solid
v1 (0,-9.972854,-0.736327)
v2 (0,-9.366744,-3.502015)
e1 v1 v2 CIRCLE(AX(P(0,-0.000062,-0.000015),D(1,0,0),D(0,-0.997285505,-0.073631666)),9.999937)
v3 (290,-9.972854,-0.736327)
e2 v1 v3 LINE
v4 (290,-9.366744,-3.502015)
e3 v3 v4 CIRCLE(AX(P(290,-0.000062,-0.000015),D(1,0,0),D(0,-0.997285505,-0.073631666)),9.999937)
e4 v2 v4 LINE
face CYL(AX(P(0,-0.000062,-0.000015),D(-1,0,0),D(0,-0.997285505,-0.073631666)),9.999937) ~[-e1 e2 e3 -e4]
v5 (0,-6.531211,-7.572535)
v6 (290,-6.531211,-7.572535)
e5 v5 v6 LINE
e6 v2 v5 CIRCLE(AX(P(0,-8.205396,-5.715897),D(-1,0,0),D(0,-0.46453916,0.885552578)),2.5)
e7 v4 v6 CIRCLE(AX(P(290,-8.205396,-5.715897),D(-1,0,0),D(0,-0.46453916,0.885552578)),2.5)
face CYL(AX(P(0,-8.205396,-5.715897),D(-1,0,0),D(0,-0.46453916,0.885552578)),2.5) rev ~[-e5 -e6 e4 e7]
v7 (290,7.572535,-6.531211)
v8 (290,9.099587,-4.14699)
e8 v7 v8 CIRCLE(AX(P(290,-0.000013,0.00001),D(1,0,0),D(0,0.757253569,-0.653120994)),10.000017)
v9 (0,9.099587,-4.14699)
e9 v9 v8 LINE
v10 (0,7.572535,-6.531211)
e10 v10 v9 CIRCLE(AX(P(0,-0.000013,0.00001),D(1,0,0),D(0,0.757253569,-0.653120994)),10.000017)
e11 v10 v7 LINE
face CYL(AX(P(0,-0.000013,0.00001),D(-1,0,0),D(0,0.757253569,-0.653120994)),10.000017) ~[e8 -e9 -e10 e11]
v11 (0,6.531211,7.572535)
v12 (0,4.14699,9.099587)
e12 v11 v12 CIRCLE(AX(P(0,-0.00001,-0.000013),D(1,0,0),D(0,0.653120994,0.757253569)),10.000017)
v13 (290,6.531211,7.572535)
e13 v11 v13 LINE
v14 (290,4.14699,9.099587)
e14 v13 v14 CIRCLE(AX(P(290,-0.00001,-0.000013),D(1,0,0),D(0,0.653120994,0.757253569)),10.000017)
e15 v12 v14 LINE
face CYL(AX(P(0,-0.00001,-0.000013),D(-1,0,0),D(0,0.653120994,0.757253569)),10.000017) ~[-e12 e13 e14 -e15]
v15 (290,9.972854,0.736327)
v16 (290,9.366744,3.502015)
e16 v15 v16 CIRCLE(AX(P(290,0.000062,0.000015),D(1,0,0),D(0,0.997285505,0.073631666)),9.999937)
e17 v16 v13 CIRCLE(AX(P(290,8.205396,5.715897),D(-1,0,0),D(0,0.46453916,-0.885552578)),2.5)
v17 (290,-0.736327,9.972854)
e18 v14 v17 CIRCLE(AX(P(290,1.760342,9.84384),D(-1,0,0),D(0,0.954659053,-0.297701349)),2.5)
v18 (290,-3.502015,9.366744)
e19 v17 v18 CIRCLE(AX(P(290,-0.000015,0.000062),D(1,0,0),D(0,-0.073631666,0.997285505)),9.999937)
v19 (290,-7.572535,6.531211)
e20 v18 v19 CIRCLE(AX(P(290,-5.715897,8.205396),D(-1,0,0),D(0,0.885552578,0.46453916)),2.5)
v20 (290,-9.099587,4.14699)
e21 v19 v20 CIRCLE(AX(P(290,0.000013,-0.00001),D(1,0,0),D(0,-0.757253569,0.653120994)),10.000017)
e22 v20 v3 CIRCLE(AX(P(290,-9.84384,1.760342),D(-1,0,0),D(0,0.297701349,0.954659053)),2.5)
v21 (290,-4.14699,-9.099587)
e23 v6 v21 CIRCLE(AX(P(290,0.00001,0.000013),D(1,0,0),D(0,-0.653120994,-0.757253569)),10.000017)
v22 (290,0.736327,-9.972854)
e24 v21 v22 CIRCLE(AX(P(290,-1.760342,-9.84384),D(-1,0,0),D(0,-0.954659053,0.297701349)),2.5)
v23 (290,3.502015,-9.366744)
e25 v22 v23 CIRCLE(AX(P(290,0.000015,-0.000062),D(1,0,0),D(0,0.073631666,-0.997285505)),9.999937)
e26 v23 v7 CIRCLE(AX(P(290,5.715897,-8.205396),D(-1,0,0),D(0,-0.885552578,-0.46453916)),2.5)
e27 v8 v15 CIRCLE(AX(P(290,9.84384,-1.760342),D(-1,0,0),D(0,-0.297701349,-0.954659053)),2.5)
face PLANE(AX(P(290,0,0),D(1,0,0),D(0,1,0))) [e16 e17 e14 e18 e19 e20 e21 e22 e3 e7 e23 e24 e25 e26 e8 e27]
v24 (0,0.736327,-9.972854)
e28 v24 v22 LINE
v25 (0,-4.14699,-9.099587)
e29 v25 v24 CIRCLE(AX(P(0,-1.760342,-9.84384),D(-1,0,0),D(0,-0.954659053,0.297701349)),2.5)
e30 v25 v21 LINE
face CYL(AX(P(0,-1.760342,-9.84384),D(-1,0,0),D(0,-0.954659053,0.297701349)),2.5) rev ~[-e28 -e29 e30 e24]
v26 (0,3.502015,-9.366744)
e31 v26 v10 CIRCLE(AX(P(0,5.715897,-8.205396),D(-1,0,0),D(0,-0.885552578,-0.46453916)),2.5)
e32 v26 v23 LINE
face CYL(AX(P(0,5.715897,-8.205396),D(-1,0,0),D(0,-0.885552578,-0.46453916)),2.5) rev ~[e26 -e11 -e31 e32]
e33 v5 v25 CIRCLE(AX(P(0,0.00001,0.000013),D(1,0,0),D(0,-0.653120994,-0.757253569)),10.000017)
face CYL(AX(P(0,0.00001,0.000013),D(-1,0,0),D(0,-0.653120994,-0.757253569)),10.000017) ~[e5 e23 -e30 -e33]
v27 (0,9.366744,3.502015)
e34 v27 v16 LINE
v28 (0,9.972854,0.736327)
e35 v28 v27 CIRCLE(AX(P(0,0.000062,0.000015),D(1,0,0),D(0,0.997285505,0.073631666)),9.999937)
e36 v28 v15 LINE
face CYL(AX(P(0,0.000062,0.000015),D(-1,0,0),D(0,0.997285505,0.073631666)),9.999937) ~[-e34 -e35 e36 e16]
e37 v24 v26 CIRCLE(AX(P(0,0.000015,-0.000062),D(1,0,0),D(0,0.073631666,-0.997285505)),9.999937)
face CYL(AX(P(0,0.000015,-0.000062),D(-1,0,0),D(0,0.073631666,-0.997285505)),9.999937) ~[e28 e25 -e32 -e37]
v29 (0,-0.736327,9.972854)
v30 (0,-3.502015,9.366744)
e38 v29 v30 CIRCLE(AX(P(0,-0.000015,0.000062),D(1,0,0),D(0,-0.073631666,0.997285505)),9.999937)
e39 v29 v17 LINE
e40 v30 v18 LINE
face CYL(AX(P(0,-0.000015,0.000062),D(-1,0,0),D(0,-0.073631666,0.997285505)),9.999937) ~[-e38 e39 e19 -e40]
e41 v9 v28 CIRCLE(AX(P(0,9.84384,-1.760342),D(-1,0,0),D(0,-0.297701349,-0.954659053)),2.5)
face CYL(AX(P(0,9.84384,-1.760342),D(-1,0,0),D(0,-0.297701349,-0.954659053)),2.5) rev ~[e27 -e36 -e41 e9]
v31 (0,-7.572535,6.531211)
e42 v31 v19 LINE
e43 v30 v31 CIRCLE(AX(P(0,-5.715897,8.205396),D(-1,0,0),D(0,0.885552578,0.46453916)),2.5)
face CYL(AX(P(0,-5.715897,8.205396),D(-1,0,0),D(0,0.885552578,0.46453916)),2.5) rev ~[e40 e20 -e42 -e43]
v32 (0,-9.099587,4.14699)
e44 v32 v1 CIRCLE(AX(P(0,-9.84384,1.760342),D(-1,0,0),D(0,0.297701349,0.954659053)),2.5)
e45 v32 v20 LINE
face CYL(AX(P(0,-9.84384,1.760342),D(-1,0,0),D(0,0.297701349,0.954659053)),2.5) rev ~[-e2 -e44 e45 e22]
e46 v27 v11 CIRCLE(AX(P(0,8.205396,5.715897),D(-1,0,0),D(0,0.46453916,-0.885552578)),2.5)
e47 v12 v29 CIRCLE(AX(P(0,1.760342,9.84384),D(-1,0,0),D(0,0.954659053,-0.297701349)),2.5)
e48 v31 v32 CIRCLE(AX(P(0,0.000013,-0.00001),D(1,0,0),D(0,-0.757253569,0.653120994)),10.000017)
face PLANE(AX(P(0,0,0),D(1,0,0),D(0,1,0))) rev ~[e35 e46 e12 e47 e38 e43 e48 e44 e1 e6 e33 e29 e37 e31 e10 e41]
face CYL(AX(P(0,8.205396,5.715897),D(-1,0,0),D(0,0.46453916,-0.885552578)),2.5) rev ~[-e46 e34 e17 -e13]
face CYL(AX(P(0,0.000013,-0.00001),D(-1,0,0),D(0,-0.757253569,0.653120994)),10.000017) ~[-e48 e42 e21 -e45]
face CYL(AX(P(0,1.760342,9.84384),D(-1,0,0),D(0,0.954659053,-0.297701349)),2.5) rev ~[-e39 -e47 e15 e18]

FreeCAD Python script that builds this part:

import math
import FreeCAD as App
import Part
import Sketcher
Q = App.Units.Quantity

doc = App.newDocument("Part")
body = doc.addObject("PartDesign::Body", "Body")

sketch1 = doc.addObject("Sketcher::SketchObject", "Sketch")
body.addObject(sketch1)
sketch1.AttachmentSupport = (doc.YZ_Plane, [""])
sketch1.MapMode = "FlatFace"
sketch1.addGeometry(Part.ArcOfCircle(Part.Circle(App.Vector(5.715897, -8.205396, 0), App.Vector(0, 0, 1), 2.5), math.radians(42.041903), math.radians(207.680401)), False)
sketch1.addGeometry(Part.ArcOfCircle(Part.Circle(App.Vector(-0.000013, 0.00001, 0), App.Vector(0, 0, 1), 10.000017), math.radians(-40.777327), math.radians(-24.500381)), False)
sketch1.addGeometry(Part.ArcOfCircle(Part.Circle(App.Vector(9.84384, -1.760342, 0), App.Vector(0, 0, 1), 2.5), math.radians(87.041914), math.radians(252.680407)), False)
sketch1.addGeometry(Part.ArcOfCircle(Part.Circle(App.Vector(0.000062, 0.000015, 0), App.Vector(0, 0, 1), 9.999937), math.radians(4.222605), math.radians(20.499684)), False)
sketch1.addGeometry(Part.ArcOfCircle(Part.Circle(App.Vector(8.205396, 5.715897, 0), App.Vector(0, 0, 1), 2.5), math.radians(132.041903), math.radians(297.680401)), False)
sketch1.addGeometry(Part.ArcOfCircle(Part.Circle(App.Vector(-0.00001, -0.000013, 0), App.Vector(0, 0, 1), 10.000017), math.radians(49.222673), math.radians(65.499619)), False)
sketch1.addGeometry(Part.ArcOfCircle(Part.Circle(App.Vector(1.760342, 9.84384, 0), App.Vector(0, 0, 1), 2.5), math.radians(177.041914), math.radians(342.680407)), False)
sketch1.addGeometry(Part.ArcOfCircle(Part.Circle(App.Vector(-0.000015, 0.000062, 0), App.Vector(0, 0, 1), 9.999937), math.radians(94.222605), math.radians(110.499684)), False)
sketch1.addGeometry(Part.ArcOfCircle(Part.Circle(App.Vector(-5.715897, 8.205396, 0), App.Vector(0, 0, 1), 2.5), math.radians(-137.958097), math.radians(27.680401)), False)
sketch1.addGeometry(Part.ArcOfCircle(Part.Circle(App.Vector(0.000013, -0.00001, 0), App.Vector(0, 0, 1), 10.000017), math.radians(139.222673), math.radians(155.499619)), False)
sketch1.addGeometry(Part.ArcOfCircle(Part.Circle(App.Vector(-9.84384, 1.760342, 0), App.Vector(0, 0, 1), 2.5), math.radians(-92.958086), math.radians(72.680407)), False)
sketch1.addGeometry(Part.ArcOfCircle(Part.Circle(App.Vector(-0.000062, -0.000015, 0), App.Vector(0, 0, 1), 9.999937), math.radians(-175.777395), math.radians(-159.500316)), False)
sketch1.addGeometry(Part.ArcOfCircle(Part.Circle(App.Vector(-8.205396, -5.715897, 0), App.Vector(0, 0, 1), 2.5), math.radians(-47.958097), math.radians(117.680401)), False)
sketch1.addGeometry(Part.ArcOfCircle(Part.Circle(App.Vector(0.00001, 0.000013, 0), App.Vector(0, 0, 1), 10.000017), math.radians(-130.777327), math.radians(-114.500381)), False)
sketch1.addGeometry(Part.ArcOfCircle(Part.Circle(App.Vector(-1.760342, -9.84384, 0), App.Vector(0, 0, 1), 2.5), math.radians(-2.958086), math.radians(162.680407)), False)
sketch1.addGeometry(Part.ArcOfCircle(Part.Circle(App.Vector(0.000015, -0.000062, 0), App.Vector(0, 0, 1), 9.999937), math.radians(-85.777395), math.radians(-69.500316)), False)
sketch1.addConstraint(Sketcher.Constraint("Coincident", 0, 1, 1, 1))
sketch1.addConstraint(Sketcher.Constraint("Coincident", 1, 2, 2, 2))
sketch1.addConstraint(Sketcher.Constraint("Coincident", 2, 1, 3, 1))
sketch1.addConstraint(Sketcher.Constraint("Coincident", 3, 2, 4, 2))
sketch1.addConstraint(Sketcher.Constraint("Coincident", 4, 1, 5, 1))
sketch1.addConstraint(Sketcher.Constraint("Coincident", 5, 2, 6, 2))
sketch1.addConstraint(Sketcher.Constraint("Coincident", 6, 1, 7, 1))
sketch1.addConstraint(Sketcher.Constraint("Coincident", 7, 2, 8, 2))
sketch1.addConstraint(Sketcher.Constraint("Coincident", 8, 1, 9, 1))
sketch1.addConstraint(Sketcher.Constraint("Coincident", 9, 2, 10, 2))
sketch1.addConstraint(Sketcher.Constraint("Coincident", 10, 1, 11, 1))
sketch1.addConstraint(Sketcher.Constraint("Coincident", 11, 2, 12, 2))
sketch1.addConstraint(Sketcher.Constraint("Coincident", 12, 1, 13, 1))
sketch1.addConstraint(Sketcher.Constraint("Coincident", 13, 2, 14, 2))
sketch1.addConstraint(Sketcher.Constraint("Coincident", 14, 1, 15, 1))
sketch1.addConstraint(Sketcher.Constraint("Coincident", 15, 2, 0, 2))
sketch1.addConstraint(Sketcher.Constraint("Equal", 0, 2))
sketch1.addConstraint(Sketcher.Constraint("Equal", 2, 4))
sketch1.addConstraint(Sketcher.Constraint("Equal", 1, 5))
sketch1.addConstraint(Sketcher.Constraint("Equal", 4, 6))
sketch1.addConstraint(Sketcher.Constraint("Equal", 3, 7))
sketch1.addConstraint(Sketcher.Constraint("Equal", 6, 8))
sketch1.addConstraint(Sketcher.Constraint("Equal", 5, 9))
sketch1.addConstraint(Sketcher.Constraint("Equal", 8, 10))
sketch1.addConstraint(Sketcher.Constraint("Equal", 7, 11))
sketch1.addConstraint(Sketcher.Constraint("Equal", 10, 12))
sketch1.addConstraint(Sketcher.Constraint("Equal", 9, 13))
sketch1.addConstraint(Sketcher.Constraint("Equal", 12, 14))
sketch1.addConstraint(Sketcher.Constraint("Equal", 11, 15))
sketch1.addConstraint(Sketcher.Constraint("Symmetric", 0, 3, 8, 3, -1, 1))
sketch1.addConstraint(Sketcher.Constraint("Symmetric", 1, 3, 9, 3, -1, 1))
sketch1.addConstraint(Sketcher.Constraint("Symmetric", 2, 3, 10, 3, -1, 1))
sketch1.addConstraint(Sketcher.Constraint("Symmetric", 3, 3, 11, 3, -1, 1))
sketch1.addConstraint(Sketcher.Constraint("Symmetric", 4, 3, 12, 3, -1, 1))
sketch1.addConstraint(Sketcher.Constraint("Symmetric", 5, 3, 13, 3, -1, 1))
sketch1.addConstraint(Sketcher.Constraint("Symmetric", 6, 3, 14, 3, -1, 1))
sketch1.addConstraint(Sketcher.Constraint("Symmetric", 7, 3, 15, 3, -1, 1))
sketch1.addConstraint(Sketcher.Constraint("Symmetric", 5, 3, 9, 3, -2))
sketch1.addConstraint(Sketcher.Constraint("Horizontal", 5, 3, 11, 3))
sketch1.addConstraint(Sketcher.Constraint("Vertical", 1, 3, 7, 3))
sketch1.addConstraint(Sketcher.Constraint("Radius", 0, Q("2.5 mm")))
sketch1.addConstraint(Sketcher.Constraint("Radius", 1, Q("10.000017 mm")))
sketch1.addConstraint(Sketcher.Constraint("Radius", 3, Q("9.999937 mm")))
sketch1.addConstraint(Sketcher.Constraint("DistanceX", 0, 3, 4, 3, Q("2.489499 mm")))
sketch1.addConstraint(Sketcher.Constraint("DistanceX", 6, 3, 2, 3, Q("8.083498 mm")))
sketch1.addConstraint(Sketcher.Constraint("DistanceX", 6, 3, 3, 2, Q("7.606402 mm")))
sketch1.addConstraint(Sketcher.Constraint("DistanceY", 10, 3, 7, 2, Q("7.606402 mm")))
sketch1.addConstraint(Sketcher.Constraint("DistanceX", -1, 1, 2, 3, Q("9.84384 mm")))
sketch1.addConstraint(Sketcher.Constraint("DistanceY", -1, 1, 6, 3, Q("9.84384 mm")))
sketch1.addConstraint(Sketcher.Constraint("DistanceY", 0, 1, -1, 1, Q("6.531211 mm")))
sketch1.addConstraint(Sketcher.Constraint("DistanceY", 1, 2, -1, 1, Q("4.14699 mm")))
sketch1.addConstraint(Sketcher.Constraint("DistanceX", -1, 1, 4, 1, Q("6.531211 mm")))
sketch1.addConstraint(Sketcher.Constraint("DistanceX", -1, 1, 5, 2, Q("4.14699 mm")))
sketch1.addConstraint(Sketcher.Constraint("DistanceX", 1, 3, 0, 3, Q("5.71591 mm")))
sketch1.addConstraint(Sketcher.Constraint("DistanceY", 2, 3, 1, 3, Q("1.760352 mm")))
pad1 = doc.addObject("PartDesign::Pad", "Pad")
body.addObject(pad1)
pad1.Profile = sketch1
pad1.Length = 290

doc.recompute()
